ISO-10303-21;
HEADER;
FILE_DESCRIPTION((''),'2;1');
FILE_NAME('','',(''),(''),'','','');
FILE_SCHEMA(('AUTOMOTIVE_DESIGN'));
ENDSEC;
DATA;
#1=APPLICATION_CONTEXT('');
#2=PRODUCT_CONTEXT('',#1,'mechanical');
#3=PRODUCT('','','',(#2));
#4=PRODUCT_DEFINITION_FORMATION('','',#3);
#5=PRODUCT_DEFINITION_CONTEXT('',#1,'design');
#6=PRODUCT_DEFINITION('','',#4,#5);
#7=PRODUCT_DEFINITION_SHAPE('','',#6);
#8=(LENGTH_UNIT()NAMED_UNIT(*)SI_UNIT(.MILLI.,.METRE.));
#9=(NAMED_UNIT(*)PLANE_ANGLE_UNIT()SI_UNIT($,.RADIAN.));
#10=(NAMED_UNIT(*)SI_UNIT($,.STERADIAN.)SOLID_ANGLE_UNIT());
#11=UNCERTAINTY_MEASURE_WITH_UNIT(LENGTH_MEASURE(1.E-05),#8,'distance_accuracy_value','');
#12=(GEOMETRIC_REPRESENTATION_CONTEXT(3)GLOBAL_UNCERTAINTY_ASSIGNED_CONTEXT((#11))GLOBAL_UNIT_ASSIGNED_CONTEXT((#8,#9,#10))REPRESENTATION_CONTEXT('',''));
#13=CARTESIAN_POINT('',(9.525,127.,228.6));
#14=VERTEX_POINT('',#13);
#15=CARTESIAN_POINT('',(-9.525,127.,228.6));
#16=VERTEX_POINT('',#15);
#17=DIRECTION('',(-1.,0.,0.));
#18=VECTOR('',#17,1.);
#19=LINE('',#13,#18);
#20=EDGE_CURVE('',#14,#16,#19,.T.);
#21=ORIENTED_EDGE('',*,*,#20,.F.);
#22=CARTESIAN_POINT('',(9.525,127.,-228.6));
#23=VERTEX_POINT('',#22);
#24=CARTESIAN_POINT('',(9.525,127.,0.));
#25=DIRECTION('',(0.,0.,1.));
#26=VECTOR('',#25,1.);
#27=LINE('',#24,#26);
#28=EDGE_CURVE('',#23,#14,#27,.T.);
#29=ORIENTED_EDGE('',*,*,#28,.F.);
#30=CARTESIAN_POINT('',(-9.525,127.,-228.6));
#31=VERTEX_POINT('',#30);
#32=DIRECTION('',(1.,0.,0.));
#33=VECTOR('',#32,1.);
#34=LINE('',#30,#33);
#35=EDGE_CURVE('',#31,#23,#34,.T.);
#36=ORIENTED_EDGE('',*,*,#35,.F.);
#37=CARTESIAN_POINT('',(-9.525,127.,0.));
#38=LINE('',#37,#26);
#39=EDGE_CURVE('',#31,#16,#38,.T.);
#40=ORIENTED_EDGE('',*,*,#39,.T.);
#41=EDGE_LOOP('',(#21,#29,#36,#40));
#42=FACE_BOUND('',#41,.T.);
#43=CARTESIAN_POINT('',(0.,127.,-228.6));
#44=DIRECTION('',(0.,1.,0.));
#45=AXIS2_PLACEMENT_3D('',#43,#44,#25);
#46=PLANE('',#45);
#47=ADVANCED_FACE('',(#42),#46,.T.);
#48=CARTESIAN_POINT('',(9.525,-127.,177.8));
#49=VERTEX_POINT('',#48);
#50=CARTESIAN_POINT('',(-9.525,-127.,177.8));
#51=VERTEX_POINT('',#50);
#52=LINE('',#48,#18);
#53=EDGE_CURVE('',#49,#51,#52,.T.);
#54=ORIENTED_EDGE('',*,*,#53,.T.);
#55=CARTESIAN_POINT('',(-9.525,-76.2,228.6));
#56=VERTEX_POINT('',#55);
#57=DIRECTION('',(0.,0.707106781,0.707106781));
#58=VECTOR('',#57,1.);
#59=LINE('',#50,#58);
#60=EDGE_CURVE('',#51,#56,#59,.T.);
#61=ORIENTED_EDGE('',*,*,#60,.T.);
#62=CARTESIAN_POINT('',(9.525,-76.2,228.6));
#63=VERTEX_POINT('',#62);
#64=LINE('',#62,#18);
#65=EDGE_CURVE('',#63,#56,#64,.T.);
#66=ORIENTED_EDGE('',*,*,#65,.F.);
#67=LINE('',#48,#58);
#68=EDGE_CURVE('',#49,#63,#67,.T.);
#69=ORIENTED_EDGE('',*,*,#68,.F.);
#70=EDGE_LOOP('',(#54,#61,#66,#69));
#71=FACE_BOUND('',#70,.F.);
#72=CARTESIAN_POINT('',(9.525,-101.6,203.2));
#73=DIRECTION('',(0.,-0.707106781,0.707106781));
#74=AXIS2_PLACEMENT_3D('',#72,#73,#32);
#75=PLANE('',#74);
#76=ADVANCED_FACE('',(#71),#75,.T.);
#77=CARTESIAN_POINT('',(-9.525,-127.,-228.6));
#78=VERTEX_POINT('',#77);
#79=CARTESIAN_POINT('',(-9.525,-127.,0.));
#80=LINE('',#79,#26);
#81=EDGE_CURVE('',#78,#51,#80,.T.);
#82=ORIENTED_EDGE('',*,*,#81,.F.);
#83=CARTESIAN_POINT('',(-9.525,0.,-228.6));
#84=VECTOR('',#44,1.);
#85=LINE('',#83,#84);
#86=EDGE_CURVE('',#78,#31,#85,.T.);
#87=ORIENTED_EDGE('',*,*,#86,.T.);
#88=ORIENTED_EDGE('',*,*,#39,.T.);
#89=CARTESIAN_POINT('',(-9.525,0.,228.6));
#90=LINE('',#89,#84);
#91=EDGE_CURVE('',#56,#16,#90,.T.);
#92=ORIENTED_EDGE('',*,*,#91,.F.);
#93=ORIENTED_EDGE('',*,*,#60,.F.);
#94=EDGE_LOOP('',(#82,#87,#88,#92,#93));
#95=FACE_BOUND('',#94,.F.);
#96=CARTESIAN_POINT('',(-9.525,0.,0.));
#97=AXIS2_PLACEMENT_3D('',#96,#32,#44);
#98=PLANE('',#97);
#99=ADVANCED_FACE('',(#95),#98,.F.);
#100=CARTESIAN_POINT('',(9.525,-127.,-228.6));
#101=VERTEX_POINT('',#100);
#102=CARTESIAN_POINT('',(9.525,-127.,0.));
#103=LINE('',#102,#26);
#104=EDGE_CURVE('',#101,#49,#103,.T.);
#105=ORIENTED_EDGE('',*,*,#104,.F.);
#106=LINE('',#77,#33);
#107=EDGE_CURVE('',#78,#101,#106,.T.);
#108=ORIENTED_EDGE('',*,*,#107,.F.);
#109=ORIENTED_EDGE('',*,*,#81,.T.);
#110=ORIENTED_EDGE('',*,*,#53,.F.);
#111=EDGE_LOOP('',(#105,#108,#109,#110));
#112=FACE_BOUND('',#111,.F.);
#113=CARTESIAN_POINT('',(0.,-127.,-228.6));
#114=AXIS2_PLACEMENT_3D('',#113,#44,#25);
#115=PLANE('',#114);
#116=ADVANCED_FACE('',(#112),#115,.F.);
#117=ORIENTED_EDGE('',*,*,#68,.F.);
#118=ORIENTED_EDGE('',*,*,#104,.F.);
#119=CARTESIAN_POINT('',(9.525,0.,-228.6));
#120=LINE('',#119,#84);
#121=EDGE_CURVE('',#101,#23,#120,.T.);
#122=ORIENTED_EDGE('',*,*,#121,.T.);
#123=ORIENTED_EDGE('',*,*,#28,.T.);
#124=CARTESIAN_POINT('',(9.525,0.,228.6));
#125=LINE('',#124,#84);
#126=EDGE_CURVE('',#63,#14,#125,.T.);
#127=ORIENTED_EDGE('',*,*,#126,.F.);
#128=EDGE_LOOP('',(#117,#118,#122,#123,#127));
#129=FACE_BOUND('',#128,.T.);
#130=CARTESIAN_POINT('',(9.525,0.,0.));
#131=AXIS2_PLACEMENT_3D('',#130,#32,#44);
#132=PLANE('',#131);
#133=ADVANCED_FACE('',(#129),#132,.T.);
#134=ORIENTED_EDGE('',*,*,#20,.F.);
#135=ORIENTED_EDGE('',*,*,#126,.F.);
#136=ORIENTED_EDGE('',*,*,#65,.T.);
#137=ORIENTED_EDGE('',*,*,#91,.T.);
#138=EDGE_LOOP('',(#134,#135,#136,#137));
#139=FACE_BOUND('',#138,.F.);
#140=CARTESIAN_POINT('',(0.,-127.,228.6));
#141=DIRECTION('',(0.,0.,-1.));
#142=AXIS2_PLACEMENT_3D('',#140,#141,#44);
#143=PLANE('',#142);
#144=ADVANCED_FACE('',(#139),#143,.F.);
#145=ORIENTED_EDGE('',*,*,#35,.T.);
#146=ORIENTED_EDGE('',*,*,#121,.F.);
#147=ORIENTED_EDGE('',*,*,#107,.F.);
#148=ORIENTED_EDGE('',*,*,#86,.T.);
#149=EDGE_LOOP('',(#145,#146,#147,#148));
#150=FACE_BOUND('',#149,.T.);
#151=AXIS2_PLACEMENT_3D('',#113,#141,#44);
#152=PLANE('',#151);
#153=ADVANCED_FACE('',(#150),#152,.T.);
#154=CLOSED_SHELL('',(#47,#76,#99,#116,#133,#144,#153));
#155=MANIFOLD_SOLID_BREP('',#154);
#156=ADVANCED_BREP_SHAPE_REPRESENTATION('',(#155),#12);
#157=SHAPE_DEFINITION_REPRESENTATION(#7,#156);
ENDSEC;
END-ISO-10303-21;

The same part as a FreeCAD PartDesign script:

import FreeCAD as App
import Part
import Sketcher
Q = App.Units.Quantity


def edges_at(feature, points):
    """Names of the edges that pass closest to the given points."""
    edges = feature.Shape.Edges
    near = lambda p: min(range(len(edges)), key=lambda i: edges[i].distToShape(Part.Vertex(*p))[0])
    return sorted({f"Edge{near(p) + 1}" for p in points})

doc = App.newDocument("Part")
body = doc.addObject("PartDesign::Body", "Body")

# Sketch on YZ plane
sketch1 = doc.addObject("Sketcher::SketchObject", "Sketch")
body.addObject(sketch1)
sketch1.AttachmentSupport = (doc.YZ_Plane, [""])
sketch1.MapMode = "FlatFace"
sketch1.addGeometry(Part.LineSegment(App.Vector(-127, 229, 0), App.Vector(-127, -229, 0)), False)
sketch1.addGeometry(Part.LineSegment(App.Vector(-127, -229, 0), App.Vector(127, -229, 0)), False)
sketch1.addGeometry(Part.LineSegment(App.Vector(127, -229, 0), App.Vector(127, 229, 0)), False)
sketch1.addGeometry(Part.LineSegment(App.Vector(127, 229, 0), App.Vector(-127, 229, 0)), False)
sketch1.addConstraint(Sketcher.Constraint("Coincident", 0, 2, 1, 1))
sketch1.addConstraint(Sketcher.Constraint("Coincident", 1, 2, 2, 1))
sketch1.addConstraint(Sketcher.Constraint("Coincident", 2, 2, 3, 1))
sketch1.addConstraint(Sketcher.Constraint("Coincident", 3, 2, 0, 1))
sketch1.addConstraint(Sketcher.Constraint("Vertical", 0))
sketch1.addConstraint(Sketcher.Constraint("Horizontal", 1))
sketch1.addConstraint(Sketcher.Constraint("Vertical", 2))
sketch1.addConstraint(Sketcher.Constraint("Horizontal", 3))
sketch1.addConstraint(Sketcher.Constraint("Symmetric", 0, 2, 2, 2, -1, 1))
sketch1.addConstraint(Sketcher.Constraint("DistanceX", 1, 1, 1, 2, Q("10 in")))
sketch1.addConstraint(Sketcher.Constraint("DistanceY", 0, 2, 0, 1, Q("18 in")))
pad1 = doc.addObject("PartDesign::Pad", "Pad")
body.addObject(pad1)
pad1.Profile = sketch1
pad1.Length = Q("0.75 in")
pad1.Midplane = True
doc.recompute()

chamfer = doc.addObject("PartDesign::Chamfer", "Chamfer")
body.addObject(chamfer)
chamfer.Base = (pad1, edges_at(pad1, [(0, -127, 228.6)]))
chamfer.Size = Q("2 in")

doc.recompute()
